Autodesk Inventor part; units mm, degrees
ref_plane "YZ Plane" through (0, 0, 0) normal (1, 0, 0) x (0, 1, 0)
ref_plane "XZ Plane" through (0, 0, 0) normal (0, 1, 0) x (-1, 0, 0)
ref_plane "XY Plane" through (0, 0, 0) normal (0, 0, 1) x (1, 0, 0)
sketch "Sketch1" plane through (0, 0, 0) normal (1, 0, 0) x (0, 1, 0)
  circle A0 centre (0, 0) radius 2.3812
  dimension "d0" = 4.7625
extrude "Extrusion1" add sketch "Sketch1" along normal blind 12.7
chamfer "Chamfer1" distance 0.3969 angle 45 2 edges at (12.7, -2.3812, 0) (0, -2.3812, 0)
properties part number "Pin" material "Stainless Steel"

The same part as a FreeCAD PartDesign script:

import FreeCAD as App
import Part
import Sketcher

V = App.Vector
Q = App.Units.Quantity


def edges_at(feature, points):
    """Names of the edges that pass closest to the given points."""
    edges = feature.Shape.Edges
    near = lambda p: min(range(len(edges)), key=lambda i: edges[i].distToShape(Part.Vertex(*p))[0])
    return sorted({f"Edge{near(p) + 1}" for p in points})

doc = App.newDocument("Part")
body = doc.addObject("PartDesign::Body", "Body")

sketch1 = body.newObject("Sketcher::SketchObject", "Sketch")
sketch1.AttachmentSupport = (doc.getObject("YZ_Plane"), [""])
sketch1.MapMode = "FlatFace"
sketch1.addGeometry(Part.Circle(V(0, 0, 0), V(0, 0, 1), 2.4), False)
sketch1.addConstraint(Sketcher.Constraint("Coincident", 0, 3, -1, 1))
sketch1.addConstraint(Sketcher.Constraint("Diameter", 0, Q("0.1875 in")))
pad1 = body.newObject("PartDesign::Pad", "Pad")
pad1.Profile = sketch1
pad1.Length = Q("0.5 in")
doc.recompute()

chamfer = body.newObject("PartDesign::Chamfer", "Chamfer")
chamfer.Base = (pad1, edges_at(pad1, [(12.7, -2.381, 0), (0, -2.381, 0)]))
chamfer.Size = Q("0.015626 in")

doc.recompute()
